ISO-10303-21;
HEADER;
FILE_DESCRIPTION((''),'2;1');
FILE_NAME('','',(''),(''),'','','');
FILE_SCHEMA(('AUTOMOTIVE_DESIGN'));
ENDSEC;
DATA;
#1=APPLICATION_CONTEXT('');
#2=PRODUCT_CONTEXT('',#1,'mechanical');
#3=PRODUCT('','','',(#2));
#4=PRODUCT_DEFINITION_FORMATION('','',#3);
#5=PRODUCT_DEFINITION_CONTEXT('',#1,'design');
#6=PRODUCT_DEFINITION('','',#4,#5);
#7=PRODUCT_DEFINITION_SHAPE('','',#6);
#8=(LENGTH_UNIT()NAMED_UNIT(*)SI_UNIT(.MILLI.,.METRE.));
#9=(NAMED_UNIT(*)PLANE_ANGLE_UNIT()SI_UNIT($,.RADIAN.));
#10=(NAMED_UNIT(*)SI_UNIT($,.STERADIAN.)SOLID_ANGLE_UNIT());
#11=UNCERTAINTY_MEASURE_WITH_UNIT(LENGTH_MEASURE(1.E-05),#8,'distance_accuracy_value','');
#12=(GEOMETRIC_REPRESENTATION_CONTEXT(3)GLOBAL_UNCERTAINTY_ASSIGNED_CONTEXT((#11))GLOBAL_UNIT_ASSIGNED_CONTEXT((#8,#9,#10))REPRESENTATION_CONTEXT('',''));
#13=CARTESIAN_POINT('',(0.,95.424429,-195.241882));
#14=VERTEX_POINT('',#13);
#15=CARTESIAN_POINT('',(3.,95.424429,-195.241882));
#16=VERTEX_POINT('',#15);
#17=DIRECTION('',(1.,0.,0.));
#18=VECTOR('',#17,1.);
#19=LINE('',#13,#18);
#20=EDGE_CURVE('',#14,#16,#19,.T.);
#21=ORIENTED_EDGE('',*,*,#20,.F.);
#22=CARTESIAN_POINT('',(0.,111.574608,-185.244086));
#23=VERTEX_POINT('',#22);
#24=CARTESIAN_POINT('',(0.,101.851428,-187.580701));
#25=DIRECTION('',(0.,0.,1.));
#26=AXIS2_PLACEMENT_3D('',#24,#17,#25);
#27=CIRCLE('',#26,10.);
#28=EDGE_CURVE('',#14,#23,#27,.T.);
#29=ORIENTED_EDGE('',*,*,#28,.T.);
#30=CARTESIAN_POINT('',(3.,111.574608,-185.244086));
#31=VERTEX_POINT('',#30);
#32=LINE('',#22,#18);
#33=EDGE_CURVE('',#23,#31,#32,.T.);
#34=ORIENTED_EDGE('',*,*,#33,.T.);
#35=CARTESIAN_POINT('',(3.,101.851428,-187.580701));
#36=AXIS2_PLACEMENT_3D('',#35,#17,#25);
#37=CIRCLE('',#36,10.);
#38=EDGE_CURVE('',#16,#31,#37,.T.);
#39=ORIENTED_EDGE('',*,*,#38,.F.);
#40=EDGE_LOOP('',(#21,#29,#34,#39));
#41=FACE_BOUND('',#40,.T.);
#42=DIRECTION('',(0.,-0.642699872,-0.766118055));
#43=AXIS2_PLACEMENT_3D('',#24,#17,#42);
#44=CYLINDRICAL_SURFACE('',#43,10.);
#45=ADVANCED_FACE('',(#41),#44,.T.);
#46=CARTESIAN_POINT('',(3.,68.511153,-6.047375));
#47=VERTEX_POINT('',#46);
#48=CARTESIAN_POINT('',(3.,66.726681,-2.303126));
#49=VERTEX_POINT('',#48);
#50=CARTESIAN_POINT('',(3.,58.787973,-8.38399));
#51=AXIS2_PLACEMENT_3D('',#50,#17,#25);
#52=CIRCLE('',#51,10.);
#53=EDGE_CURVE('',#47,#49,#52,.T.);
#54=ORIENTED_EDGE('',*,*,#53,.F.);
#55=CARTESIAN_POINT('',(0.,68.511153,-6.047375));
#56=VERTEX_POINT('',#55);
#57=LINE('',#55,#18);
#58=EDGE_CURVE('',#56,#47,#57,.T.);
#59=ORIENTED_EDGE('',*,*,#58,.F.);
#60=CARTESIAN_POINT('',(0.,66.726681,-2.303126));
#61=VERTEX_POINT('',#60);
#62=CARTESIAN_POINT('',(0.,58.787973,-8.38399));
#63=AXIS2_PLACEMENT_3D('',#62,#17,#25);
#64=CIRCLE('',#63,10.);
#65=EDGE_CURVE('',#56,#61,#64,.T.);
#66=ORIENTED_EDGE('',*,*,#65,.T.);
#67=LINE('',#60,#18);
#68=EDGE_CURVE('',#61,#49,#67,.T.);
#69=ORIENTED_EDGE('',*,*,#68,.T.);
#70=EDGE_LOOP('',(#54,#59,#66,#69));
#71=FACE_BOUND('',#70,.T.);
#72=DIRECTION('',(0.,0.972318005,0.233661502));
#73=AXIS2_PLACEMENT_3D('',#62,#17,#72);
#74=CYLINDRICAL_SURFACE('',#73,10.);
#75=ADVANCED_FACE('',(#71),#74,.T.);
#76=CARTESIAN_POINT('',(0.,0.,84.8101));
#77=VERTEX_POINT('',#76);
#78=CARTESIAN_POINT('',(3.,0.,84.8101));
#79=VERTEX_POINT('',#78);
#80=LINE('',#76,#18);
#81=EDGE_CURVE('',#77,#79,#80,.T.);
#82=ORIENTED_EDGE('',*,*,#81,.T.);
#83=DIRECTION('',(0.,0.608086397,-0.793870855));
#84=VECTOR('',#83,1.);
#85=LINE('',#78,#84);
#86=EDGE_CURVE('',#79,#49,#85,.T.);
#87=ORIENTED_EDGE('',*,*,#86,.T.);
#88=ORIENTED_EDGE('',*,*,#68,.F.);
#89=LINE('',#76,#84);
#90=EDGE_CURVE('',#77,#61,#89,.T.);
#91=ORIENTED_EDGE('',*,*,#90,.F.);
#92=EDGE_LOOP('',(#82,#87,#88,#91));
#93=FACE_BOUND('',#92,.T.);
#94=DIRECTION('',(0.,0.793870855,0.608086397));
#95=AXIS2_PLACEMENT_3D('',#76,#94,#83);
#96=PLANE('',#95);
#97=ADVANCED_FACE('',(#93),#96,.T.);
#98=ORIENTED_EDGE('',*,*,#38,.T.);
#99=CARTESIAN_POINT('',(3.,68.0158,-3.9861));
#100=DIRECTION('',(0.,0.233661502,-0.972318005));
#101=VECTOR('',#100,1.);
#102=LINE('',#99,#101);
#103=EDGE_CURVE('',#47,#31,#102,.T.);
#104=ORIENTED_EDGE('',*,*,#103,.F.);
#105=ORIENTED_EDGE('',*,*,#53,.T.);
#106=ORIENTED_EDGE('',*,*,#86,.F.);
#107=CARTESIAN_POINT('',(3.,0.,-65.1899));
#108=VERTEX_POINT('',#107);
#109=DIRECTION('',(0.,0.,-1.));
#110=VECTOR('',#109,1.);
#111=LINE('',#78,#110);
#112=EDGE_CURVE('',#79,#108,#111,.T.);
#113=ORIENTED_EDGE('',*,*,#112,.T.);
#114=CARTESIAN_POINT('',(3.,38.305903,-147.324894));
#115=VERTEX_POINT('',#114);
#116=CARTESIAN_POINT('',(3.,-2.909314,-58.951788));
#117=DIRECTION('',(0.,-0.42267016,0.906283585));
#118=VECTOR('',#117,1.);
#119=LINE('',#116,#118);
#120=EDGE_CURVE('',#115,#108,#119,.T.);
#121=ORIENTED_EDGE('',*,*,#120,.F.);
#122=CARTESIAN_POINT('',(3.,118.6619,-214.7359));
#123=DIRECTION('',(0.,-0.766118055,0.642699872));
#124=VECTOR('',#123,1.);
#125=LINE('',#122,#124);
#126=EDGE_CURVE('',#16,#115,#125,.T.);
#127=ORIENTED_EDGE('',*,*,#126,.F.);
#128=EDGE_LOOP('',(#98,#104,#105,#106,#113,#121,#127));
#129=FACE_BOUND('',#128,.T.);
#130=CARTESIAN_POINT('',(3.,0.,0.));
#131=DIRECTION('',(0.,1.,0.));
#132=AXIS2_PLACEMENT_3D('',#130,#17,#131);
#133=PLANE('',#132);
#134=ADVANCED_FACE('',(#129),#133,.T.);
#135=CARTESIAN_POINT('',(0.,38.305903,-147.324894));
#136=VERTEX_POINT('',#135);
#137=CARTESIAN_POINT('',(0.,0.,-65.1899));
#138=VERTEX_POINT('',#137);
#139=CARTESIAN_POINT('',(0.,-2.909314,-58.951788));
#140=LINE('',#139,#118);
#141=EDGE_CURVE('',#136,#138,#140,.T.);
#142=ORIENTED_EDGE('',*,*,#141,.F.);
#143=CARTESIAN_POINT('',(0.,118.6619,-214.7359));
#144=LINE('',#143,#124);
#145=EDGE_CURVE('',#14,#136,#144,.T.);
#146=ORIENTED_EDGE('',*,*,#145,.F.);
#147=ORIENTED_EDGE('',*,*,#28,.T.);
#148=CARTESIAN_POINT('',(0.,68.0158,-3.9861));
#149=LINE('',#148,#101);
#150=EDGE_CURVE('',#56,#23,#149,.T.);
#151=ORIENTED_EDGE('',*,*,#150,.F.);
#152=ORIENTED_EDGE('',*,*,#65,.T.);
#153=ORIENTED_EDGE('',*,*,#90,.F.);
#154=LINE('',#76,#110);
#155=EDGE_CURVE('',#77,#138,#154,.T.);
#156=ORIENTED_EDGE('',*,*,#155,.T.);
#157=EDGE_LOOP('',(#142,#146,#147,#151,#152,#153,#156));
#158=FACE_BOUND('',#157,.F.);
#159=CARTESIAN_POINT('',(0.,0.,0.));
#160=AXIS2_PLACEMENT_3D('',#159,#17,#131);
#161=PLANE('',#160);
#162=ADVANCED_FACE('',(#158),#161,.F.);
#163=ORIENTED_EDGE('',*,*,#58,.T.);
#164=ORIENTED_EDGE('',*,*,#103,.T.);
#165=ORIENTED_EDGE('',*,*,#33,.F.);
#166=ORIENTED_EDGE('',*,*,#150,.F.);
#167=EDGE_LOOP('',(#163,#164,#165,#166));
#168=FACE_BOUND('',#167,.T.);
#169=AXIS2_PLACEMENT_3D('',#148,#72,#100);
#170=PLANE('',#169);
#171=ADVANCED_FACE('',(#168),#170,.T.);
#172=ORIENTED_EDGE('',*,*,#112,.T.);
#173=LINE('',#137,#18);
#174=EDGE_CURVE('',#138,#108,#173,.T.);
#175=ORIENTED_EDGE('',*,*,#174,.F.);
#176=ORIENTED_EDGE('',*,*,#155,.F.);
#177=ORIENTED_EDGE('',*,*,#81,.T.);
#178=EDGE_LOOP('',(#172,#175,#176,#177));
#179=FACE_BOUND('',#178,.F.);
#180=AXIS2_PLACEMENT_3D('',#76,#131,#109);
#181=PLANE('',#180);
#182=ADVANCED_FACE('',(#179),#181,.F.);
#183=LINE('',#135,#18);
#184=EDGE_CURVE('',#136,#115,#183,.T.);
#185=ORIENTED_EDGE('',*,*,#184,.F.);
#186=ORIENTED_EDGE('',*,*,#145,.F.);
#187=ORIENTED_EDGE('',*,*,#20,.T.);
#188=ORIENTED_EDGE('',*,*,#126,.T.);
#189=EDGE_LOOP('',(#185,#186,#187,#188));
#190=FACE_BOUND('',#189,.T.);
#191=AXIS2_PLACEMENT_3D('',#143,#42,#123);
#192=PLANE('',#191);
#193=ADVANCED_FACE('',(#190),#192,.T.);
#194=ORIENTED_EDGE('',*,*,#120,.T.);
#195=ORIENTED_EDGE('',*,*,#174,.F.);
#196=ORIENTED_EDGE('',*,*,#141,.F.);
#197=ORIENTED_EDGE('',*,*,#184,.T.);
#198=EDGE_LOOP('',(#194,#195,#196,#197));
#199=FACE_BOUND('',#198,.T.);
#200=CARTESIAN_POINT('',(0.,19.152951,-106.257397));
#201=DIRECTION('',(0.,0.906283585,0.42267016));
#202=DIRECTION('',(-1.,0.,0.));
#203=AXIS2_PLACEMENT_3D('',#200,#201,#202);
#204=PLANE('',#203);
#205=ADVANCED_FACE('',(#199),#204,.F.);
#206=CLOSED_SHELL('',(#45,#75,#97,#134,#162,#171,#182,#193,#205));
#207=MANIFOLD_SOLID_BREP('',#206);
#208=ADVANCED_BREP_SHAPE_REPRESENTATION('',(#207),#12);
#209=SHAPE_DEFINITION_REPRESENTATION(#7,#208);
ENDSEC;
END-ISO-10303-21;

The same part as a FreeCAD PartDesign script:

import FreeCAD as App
import Part
import Sketcher
from FreeCAD import Vector
Q = App.Units.Quantity


def edges_at(feature, points):
    """Names of the edges that pass closest to the given points."""
    edges = feature.Shape.Edges
    near = lambda p: min(range(len(edges)), key=lambda i: edges[i].distToShape(Part.Vertex(*p))[0])
    return sorted({f"Edge{near(p) + 1}" for p in points})

doc = App.newDocument("Part")
body = doc.addObject("PartDesign::Body", "Body")

sketch1 = body.newObject("Sketcher::SketchObject", "Sketch")
sketch1.AttachmentSupport = (doc.getObject("YZ_Plane"), [""])
sketch1.MapMode = "FlatFace"
sketch1.addGeometry(Part.LineSegment(Vector(68.0158, -3.9861, 0), Vector(0, 84.8101, 0)), False)
sketch1.addGeometry(Part.LineSegment(Vector(0, 84.8101, 0), Vector(0, -115.1899, 0)), False)
sketch1.addGeometry(Part.LineSegment(Vector(0, -115.1899, 0), Vector(118.6619, -214.7359, 0)), False)
sketch1.addGeometry(Part.LineSegment(Vector(118.6619, -214.7359, 0), Vector(68.0158, -3.9861, 0)), False)
sketch1.addConstraint(Sketcher.Constraint("Coincident", 0, 2, 1, 1))
sketch1.addConstraint(Sketcher.Constraint("Coincident", 1, 2, 2, 1))
sketch1.addConstraint(Sketcher.Constraint("Coincident", 2, 2, 3, 1))
sketch1.addConstraint(Sketcher.Constraint("Coincident", 3, 2, 0, 1))
sketch1.addConstraint(Sketcher.Constraint("Vertical", 1))
sketch1.addConstraint(Sketcher.Constraint("PointOnObject", 0, 2, -2))
sketch1.addConstraint(Sketcher.Constraint("DistanceY", 1, 2, 1, 1, Q("200 mm")))
sketch1.addConstraint(Sketcher.Constraint("DistanceY", -1, 1, 0, 2, Q("84.81 mm")))
sketch1.addConstraint(Sketcher.Constraint("DistanceX", -1, 1, 2, 2, Q("118.662 mm")))
sketch1.addConstraint(Sketcher.Constraint("DistanceY", 2, 2, -1, 1, Q("214.736 mm")))
sketch1.addConstraint(Sketcher.Constraint("DistanceY", 3, 2, -1, 1, Q("3.986 mm")))
sketch1.addConstraint(Sketcher.Constraint("DistanceX", 3, 2, 2, 2, Q("50.646 mm")))
pad1 = body.newObject("PartDesign::Pad", "Pad")
pad1.Profile = sketch1
pad1.Length = 3
doc.recompute()

chamfer = body.newObject("PartDesign::Chamfer", "Chamfer")
chamfer.Base = (pad1, edges_at(pad1, [(1.5, 0, -115.19)]))
chamfer.Size = 50
doc.recompute()

fillet = body.newObject("PartDesign::Fillet", "Fillet")
fillet.Base = (chamfer, edges_at(chamfer, [(1.5, 118.662, -214.736), (1.5, 68.016, -3.986)]))
fillet.Radius = 10

doc.recompute()
